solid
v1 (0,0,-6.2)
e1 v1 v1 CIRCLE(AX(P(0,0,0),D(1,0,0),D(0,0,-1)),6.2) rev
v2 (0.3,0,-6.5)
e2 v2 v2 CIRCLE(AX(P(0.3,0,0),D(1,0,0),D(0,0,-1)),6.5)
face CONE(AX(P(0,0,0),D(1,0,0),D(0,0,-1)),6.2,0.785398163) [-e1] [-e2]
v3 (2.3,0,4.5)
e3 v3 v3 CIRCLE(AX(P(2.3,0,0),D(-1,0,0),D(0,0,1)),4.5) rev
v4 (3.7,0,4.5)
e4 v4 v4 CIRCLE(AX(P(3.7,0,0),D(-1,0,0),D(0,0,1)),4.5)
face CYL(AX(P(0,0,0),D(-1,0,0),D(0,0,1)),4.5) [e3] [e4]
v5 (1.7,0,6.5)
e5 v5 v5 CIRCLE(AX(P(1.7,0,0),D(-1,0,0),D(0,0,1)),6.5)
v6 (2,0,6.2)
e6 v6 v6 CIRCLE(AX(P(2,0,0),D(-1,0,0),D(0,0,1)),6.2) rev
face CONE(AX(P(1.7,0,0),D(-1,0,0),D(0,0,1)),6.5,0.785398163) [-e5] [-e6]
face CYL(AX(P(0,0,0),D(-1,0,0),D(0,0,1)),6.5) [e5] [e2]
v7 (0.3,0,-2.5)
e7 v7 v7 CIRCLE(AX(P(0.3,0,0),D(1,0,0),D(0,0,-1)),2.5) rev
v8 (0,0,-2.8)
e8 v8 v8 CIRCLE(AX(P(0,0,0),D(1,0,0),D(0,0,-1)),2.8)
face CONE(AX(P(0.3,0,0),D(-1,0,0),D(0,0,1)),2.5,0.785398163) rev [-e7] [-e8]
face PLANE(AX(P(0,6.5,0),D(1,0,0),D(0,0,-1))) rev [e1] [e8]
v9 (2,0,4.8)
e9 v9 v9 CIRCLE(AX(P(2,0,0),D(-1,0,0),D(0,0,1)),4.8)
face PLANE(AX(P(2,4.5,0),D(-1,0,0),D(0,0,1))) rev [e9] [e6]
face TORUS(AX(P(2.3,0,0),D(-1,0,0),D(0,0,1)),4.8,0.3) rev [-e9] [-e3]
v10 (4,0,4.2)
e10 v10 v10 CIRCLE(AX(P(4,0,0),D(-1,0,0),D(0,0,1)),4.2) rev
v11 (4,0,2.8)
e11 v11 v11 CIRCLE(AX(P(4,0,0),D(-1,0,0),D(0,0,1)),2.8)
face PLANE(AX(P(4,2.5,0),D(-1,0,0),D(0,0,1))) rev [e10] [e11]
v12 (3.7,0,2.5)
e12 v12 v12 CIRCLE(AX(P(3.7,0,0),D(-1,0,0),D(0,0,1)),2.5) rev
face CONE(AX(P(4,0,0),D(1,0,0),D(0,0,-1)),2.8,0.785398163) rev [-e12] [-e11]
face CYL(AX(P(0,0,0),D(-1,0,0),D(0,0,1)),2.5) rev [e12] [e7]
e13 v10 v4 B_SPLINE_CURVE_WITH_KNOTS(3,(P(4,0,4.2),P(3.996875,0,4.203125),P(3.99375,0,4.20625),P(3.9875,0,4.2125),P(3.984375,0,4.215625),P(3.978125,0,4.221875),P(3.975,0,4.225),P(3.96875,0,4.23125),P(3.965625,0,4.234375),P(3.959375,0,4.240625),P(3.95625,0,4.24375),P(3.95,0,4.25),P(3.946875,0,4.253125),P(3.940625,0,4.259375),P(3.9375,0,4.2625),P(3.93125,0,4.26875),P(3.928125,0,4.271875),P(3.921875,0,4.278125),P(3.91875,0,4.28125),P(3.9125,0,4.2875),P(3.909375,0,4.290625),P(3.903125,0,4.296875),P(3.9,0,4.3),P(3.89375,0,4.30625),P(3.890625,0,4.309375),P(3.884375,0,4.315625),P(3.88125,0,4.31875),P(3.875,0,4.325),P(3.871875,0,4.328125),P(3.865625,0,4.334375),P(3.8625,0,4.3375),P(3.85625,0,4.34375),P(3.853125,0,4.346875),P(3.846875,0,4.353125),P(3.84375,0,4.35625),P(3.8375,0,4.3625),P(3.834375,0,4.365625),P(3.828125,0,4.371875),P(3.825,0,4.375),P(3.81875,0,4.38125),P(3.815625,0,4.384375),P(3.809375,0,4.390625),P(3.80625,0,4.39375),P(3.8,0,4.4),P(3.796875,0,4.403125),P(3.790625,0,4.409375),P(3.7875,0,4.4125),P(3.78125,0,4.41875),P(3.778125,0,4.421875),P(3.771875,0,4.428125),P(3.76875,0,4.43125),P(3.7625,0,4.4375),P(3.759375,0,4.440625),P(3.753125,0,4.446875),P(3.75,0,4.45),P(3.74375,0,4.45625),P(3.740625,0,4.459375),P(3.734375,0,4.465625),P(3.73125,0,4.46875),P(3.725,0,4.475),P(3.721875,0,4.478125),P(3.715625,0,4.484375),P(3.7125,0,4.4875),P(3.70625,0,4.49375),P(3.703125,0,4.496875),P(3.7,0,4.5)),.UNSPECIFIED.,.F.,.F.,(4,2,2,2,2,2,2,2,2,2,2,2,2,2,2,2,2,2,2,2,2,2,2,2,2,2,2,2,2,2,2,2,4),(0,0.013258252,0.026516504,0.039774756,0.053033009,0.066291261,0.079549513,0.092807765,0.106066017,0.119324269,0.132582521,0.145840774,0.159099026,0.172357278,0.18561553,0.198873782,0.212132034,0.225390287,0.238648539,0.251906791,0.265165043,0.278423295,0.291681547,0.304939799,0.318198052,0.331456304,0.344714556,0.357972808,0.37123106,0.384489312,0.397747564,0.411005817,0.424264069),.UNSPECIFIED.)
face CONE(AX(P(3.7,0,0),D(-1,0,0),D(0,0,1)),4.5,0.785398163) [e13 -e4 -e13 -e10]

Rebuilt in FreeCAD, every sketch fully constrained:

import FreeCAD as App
import Part
import Sketcher


def edges_at(feature, points):
    """Names of the edges that pass closest to the given points."""
    edges = feature.Shape.Edges
    near = lambda p: min(range(len(edges)), key=lambda i: edges[i].distToShape(Part.Vertex(*p))[0])
    return sorted({f"Edge{near(p) + 1}" for p in points})

doc = App.newDocument("Part")
body = doc.addObject("PartDesign::Body", "Body")

# Sketch on XY plane
sketch1 = body.newObject("Sketcher::SketchObject", "Sketch")
sketch1.AttachmentSupport = (doc.getObject("XY_Plane"), [""])
sketch1.MapMode = "FlatFace"
sketch1.addGeometry([
    Part.LineSegment(App.Vector(0, 2.5, 0), App.Vector(4, 2.5, 0)),  # 0
    Part.LineSegment(App.Vector(4, 2.5, 0), App.Vector(4, 4.5, 0)),  # 1
    Part.LineSegment(App.Vector(4, 4.5, 0), App.Vector(2, 4.5, 0)),  # 2
    Part.LineSegment(App.Vector(2, 4.5, 0), App.Vector(2, 6.5, 0)),  # 3
    Part.LineSegment(App.Vector(2, 6.5, 0), App.Vector(0, 6.5, 0)),  # 4
    Part.LineSegment(App.Vector(0, 6.5, 0), App.Vector(0, 2.5, 0)),  # 5
], False)
sketch1.addConstraint([
    Sketcher.Constraint("Coincident", 0, 2, 1, 1),
    Sketcher.Constraint("Coincident", 1, 2, 2, 1),
    Sketcher.Constraint("Coincident", 2, 2, 3, 1),
    Sketcher.Constraint("Coincident", 3, 2, 4, 1),
    Sketcher.Constraint("Coincident", 4, 2, 5, 1),
    Sketcher.Constraint("Coincident", 5, 2, 0, 1),
    Sketcher.Constraint("Horizontal", 0),
    Sketcher.Constraint("Vertical", 1),
    Sketcher.Constraint("Horizontal", 2),
    Sketcher.Constraint("Vertical", 3),
    Sketcher.Constraint("Horizontal", 4),
    Sketcher.Constraint("Vertical", 5),
    Sketcher.Constraint("PointOnObject", 4, 2, -2),
    Sketcher.Constraint("Equal", 2, 4),
    Sketcher.Constraint("Equal", 4, 1),
    Sketcher.Constraint("Equal", 1, 3),
    Sketcher.Constraint("DistanceX", 0, 1, 0, 2, 4.0),
    Sketcher.Constraint("DistanceY", -1, 1, 0, 2, 2.5),
])
revolution = body.newObject("PartDesign::Revolution", "Revolution")
revolution.Profile = sketch1
revolution.ReferenceAxis = (sketch1, ["H_Axis"])
revolution.Angle = 360
doc.recompute()

fillet = body.newObject("PartDesign::Fillet", "Fillet")
fillet.Base = (revolution, edges_at(revolution, [(2, 0, -4.5)]))
fillet.Radius = 0.3
doc.recompute()

chamfer = body.newObject("PartDesign::Chamfer", "Chamfer")
chamfer.Base = (fillet, edges_at(fillet, [
    (0, 0, -6.5),
    (2, 0, -6.5),
    (4, 0, -4.5),
    (4, 0, -2.5),
    (0, 0, -2.5),
]))
chamfer.Size = 0.3

doc.recompute()
